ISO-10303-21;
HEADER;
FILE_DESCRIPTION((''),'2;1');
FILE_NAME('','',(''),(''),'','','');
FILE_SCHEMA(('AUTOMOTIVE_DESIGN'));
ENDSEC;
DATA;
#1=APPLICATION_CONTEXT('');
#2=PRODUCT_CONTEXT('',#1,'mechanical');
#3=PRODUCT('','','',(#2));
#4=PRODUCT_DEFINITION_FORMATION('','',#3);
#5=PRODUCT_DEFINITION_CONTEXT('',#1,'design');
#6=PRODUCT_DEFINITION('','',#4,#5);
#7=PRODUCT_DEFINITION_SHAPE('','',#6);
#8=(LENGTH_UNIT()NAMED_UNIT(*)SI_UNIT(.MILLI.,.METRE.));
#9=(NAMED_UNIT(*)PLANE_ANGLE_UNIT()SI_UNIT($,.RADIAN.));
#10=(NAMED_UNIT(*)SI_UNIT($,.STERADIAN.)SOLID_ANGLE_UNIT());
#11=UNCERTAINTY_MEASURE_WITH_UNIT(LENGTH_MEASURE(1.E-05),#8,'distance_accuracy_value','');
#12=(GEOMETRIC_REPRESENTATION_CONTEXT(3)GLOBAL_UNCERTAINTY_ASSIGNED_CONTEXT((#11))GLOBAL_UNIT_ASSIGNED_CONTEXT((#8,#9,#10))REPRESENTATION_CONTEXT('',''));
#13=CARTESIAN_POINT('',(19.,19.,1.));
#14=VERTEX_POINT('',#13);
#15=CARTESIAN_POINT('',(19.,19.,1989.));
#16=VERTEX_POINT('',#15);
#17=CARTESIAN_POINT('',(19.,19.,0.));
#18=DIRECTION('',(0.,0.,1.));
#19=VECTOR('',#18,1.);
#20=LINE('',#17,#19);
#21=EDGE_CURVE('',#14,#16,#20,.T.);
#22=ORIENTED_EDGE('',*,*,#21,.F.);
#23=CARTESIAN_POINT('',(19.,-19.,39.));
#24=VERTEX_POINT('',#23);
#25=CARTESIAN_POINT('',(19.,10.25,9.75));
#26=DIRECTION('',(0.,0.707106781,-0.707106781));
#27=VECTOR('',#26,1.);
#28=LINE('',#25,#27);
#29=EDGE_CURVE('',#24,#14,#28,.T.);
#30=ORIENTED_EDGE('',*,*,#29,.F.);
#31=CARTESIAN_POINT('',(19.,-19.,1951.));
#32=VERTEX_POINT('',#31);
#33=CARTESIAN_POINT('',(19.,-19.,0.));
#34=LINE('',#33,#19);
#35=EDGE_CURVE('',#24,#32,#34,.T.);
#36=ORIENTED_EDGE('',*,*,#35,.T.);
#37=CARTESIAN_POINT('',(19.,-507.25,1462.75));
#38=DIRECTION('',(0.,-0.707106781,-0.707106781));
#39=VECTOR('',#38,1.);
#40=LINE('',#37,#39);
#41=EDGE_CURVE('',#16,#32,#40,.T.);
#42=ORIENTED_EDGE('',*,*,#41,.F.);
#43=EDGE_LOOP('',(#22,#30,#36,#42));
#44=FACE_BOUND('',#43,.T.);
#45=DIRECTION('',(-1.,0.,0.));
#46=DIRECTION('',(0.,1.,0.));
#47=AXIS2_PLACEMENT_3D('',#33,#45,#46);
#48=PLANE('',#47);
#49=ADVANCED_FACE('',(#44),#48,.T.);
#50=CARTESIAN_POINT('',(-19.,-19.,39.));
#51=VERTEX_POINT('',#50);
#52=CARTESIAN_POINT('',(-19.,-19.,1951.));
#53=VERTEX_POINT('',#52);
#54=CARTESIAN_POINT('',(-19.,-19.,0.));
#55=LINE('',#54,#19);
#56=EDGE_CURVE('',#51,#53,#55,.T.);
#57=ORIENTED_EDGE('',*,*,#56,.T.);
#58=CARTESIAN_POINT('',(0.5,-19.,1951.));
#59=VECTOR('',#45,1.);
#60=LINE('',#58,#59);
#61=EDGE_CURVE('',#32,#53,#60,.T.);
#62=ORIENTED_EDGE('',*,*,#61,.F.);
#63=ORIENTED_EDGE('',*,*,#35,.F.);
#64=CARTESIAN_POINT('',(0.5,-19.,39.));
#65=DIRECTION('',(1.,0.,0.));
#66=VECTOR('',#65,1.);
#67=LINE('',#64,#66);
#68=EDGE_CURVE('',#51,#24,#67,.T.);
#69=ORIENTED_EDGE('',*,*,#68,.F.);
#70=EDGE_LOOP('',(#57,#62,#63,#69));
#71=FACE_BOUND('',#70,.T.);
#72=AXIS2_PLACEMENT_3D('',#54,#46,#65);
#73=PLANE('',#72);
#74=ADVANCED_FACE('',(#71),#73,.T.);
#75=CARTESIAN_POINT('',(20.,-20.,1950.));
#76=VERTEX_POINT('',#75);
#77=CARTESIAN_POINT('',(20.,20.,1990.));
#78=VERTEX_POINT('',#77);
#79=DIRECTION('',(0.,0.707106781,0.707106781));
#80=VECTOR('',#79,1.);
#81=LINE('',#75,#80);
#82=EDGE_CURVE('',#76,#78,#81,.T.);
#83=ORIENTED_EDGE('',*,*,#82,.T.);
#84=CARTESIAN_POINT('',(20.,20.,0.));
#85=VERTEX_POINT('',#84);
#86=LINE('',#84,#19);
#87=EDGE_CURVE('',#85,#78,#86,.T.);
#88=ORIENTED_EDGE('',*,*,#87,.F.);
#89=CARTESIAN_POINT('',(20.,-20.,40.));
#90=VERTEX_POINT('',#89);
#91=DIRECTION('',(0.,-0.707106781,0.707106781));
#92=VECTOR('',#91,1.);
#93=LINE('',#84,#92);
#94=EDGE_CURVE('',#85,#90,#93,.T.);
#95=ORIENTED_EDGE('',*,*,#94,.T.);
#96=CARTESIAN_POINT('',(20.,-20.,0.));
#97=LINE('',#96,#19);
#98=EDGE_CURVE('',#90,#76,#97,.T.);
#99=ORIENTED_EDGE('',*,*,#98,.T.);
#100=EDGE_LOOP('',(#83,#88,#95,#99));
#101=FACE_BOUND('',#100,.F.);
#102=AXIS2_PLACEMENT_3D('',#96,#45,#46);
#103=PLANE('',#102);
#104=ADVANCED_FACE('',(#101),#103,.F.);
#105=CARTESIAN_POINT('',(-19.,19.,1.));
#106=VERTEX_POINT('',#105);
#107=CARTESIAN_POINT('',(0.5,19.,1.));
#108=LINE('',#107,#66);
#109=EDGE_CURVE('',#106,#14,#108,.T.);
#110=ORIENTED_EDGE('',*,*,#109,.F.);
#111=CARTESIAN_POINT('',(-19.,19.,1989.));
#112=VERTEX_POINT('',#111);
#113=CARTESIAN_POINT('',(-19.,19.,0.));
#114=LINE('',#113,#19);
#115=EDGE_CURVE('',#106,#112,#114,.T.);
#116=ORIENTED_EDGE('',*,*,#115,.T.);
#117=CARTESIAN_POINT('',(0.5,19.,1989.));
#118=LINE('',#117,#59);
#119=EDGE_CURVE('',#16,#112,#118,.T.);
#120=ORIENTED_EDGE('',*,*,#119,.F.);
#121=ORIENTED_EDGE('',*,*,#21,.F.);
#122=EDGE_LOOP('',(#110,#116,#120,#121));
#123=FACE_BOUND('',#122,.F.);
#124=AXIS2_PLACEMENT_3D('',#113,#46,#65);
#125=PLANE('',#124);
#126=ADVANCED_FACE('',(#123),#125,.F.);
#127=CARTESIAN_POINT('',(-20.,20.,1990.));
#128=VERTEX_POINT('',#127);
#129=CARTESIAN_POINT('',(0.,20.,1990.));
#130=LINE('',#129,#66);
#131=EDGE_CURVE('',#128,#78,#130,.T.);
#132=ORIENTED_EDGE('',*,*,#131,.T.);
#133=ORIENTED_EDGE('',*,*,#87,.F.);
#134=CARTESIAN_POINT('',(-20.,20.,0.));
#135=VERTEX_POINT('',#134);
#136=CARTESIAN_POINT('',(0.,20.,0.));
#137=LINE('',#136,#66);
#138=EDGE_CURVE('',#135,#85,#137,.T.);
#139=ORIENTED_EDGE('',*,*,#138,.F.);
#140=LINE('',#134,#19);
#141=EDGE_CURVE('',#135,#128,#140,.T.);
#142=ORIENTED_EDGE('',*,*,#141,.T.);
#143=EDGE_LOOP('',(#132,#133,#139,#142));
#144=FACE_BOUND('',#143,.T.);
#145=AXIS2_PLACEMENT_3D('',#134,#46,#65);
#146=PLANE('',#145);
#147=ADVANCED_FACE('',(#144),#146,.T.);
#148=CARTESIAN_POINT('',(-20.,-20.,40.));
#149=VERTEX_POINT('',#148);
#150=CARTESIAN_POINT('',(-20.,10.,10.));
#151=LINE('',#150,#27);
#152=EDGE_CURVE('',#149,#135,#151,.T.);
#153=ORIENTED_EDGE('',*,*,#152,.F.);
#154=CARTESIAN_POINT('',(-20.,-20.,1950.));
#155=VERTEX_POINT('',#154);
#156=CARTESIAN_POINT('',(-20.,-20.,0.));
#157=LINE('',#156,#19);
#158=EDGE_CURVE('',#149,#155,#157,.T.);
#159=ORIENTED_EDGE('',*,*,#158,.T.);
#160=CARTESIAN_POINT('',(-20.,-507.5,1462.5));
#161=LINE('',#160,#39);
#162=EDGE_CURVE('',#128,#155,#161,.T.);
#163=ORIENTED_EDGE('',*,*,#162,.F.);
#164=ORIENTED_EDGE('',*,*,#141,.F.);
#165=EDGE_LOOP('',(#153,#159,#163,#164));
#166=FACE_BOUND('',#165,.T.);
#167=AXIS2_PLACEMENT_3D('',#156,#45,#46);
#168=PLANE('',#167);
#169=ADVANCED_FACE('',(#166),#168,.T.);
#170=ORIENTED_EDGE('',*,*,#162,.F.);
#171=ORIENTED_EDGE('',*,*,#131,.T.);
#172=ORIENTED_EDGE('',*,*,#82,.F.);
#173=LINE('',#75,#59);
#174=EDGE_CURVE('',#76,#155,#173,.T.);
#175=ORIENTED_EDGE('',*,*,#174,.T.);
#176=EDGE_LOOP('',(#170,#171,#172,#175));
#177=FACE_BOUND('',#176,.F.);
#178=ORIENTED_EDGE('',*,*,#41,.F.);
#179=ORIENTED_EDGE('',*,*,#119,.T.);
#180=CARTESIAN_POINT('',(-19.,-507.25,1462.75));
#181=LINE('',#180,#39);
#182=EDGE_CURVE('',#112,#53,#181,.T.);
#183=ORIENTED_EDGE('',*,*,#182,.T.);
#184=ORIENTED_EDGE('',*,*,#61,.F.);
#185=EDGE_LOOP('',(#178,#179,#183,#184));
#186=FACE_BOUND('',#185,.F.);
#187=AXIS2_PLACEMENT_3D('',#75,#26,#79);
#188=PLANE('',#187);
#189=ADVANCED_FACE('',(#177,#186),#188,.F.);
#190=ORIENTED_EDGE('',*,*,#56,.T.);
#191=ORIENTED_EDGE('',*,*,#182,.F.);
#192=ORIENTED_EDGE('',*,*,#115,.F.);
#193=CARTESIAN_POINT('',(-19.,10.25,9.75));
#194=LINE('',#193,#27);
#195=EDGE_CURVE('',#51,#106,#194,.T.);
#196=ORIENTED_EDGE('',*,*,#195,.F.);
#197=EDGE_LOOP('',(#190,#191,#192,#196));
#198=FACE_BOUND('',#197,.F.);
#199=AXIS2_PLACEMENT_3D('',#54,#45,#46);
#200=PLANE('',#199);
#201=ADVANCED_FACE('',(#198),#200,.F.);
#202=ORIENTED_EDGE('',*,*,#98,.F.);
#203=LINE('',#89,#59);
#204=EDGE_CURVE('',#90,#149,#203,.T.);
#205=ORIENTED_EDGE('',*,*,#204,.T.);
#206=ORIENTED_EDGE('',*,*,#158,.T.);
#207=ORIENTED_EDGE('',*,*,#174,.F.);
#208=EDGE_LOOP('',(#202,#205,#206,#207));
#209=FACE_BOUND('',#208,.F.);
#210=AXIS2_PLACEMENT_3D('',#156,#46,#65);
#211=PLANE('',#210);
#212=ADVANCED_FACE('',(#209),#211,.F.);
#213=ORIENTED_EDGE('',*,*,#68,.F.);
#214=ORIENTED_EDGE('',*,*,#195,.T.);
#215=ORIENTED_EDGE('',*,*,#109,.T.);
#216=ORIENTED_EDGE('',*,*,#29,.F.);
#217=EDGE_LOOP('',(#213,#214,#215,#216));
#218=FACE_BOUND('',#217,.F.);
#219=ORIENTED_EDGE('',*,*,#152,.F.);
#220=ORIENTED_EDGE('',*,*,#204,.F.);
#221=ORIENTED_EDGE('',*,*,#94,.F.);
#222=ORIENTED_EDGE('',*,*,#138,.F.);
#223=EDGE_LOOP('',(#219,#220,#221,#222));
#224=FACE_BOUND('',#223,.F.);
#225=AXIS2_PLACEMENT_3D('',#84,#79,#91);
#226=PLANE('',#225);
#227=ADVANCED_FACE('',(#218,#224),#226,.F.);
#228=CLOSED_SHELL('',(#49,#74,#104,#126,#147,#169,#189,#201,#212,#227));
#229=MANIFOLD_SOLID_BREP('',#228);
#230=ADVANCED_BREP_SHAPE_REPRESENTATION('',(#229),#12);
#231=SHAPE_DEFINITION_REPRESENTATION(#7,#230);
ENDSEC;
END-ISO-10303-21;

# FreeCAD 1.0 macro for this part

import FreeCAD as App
import Part
import Sketcher
from FreeCAD import Vector
Q = App.Units.Quantity


def add_polygon(sketch, points):
    """Adds a closed chain of lines whose ends are joined by coincident constraints."""
    first, n = sketch.GeometryCount, len(points)
    for a, b in zip(points, points[1:] + points[:1]):
        sketch.addGeometry(Part.LineSegment(App.Vector(*a, 0), App.Vector(*b, 0)), False)
    for i in range(n):
        sketch.addConstraint(Sketcher.Constraint("Coincident", first + i, 2, first + (i + 1) % n, 1))

doc = App.newDocument("Part")
body = doc.addObject("PartDesign::Body", "Body")

# Sketch on XY plane
sketch1 = doc.addObject("Sketcher::SketchObject", "Sketch")
body.addObject(sketch1)
sketch1.AttachmentSupport = (doc.XY_Plane, [""])
sketch1.MapMode = "FlatFace"
add_polygon(sketch1, [(-20, 20), (-20, -20), (20, -20), (20, 20)])  # lines 0-3
add_polygon(sketch1, [(19, -19), (-19, -19), (-19, 19), (19, 19)])  # lines 4-7
sketch1.addConstraint([
    Sketcher.Constraint("Vertical", 0),
    Sketcher.Constraint("Horizontal", 1),
    Sketcher.Constraint("Vertical", 2),
    Sketcher.Constraint("Horizontal", 3),
    Sketcher.Constraint("Horizontal", 4),
    Sketcher.Constraint("Vertical", 5),
    Sketcher.Constraint("Horizontal", 6),
    Sketcher.Constraint("Vertical", 7),
    Sketcher.Constraint("Symmetric", 0, 2, 2, 2, -1, 1),
    Sketcher.Constraint("Symmetric", 4, 2, 6, 2, -1, 1),
    Sketcher.Constraint("Equal", 3, 0),
    Sketcher.Constraint("Equal", 6, 5),
    Sketcher.Constraint("DistanceX", 1, 1, 1, 2, Q("40 mm")),
    Sketcher.Constraint("DistanceX", 4, 2, 4, 1, Q("38 mm")),
])
pad1 = doc.addObject("PartDesign::Pad", "Pad")
body.addObject(pad1)
pad1.Profile = sketch1
pad1.Length = 1990

# Sketch on YZ plane
sketch2 = doc.addObject("Sketcher::SketchObject", "Sketch001")
body.addObject(sketch2)
sketch2.AttachmentSupport = (doc.YZ_Plane, [""])
sketch2.MapMode = "FlatFace"
sketch2.AttachmentOffset = App.Placement(Vector(0, 0, 20), App.Rotation())
add_polygon(sketch2, [(-20, 1950), (20, 1990), (-20, 1990)])  # lines 0-2
sketch2.addConstraint([
    Sketcher.Constraint("Horizontal", 1),
    Sketcher.Constraint("Vertical", 2),
    Sketcher.Constraint("Equal", 1, 2),
    Sketcher.Constraint("DistanceX", 1, 2, 1, 1, Q("40 mm")),
    Sketcher.Constraint("DistanceX", -1, 1, 0, 2, Q("20 mm")),
    Sketcher.Constraint("DistanceY", -1, 1, 0, 2, Q("1990 mm")),
])
pocket1 = doc.addObject("PartDesign::Pocket", "Pocket")
body.addObject(pocket1)
pocket1.Profile = sketch2
pocket1.Length = 100

# Sketch on YZ plane
sketch3 = doc.addObject("Sketcher::SketchObject", "Sketch002")
body.addObject(sketch3)
sketch3.AttachmentSupport = (doc.YZ_Plane, [""])
sketch3.MapMode = "FlatFace"
sketch3.AttachmentOffset = App.Placement(Vector(0, 0, 20), App.Rotation())
add_polygon(sketch3, [(-20, 0), (20, 0), (-20, 40)])  # lines 0-2
sketch3.addConstraint([
    Sketcher.Constraint("Horizontal", 0),
    Sketcher.Constraint("Vertical", 2),
    Sketcher.Constraint("Symmetric", 0, 2, 2, 2, -1, 1),
    Sketcher.Constraint("Equal", 0, 2),
    Sketcher.Constraint("DistanceX", 0, 1, 0, 2, Q("40 mm")),
])
pocket2 = doc.addObject("PartDesign::Pocket", "Pocket001")
body.addObject(pocket2)
pocket2.Profile = sketch3
pocket2.Length = 99

doc.recompute()
